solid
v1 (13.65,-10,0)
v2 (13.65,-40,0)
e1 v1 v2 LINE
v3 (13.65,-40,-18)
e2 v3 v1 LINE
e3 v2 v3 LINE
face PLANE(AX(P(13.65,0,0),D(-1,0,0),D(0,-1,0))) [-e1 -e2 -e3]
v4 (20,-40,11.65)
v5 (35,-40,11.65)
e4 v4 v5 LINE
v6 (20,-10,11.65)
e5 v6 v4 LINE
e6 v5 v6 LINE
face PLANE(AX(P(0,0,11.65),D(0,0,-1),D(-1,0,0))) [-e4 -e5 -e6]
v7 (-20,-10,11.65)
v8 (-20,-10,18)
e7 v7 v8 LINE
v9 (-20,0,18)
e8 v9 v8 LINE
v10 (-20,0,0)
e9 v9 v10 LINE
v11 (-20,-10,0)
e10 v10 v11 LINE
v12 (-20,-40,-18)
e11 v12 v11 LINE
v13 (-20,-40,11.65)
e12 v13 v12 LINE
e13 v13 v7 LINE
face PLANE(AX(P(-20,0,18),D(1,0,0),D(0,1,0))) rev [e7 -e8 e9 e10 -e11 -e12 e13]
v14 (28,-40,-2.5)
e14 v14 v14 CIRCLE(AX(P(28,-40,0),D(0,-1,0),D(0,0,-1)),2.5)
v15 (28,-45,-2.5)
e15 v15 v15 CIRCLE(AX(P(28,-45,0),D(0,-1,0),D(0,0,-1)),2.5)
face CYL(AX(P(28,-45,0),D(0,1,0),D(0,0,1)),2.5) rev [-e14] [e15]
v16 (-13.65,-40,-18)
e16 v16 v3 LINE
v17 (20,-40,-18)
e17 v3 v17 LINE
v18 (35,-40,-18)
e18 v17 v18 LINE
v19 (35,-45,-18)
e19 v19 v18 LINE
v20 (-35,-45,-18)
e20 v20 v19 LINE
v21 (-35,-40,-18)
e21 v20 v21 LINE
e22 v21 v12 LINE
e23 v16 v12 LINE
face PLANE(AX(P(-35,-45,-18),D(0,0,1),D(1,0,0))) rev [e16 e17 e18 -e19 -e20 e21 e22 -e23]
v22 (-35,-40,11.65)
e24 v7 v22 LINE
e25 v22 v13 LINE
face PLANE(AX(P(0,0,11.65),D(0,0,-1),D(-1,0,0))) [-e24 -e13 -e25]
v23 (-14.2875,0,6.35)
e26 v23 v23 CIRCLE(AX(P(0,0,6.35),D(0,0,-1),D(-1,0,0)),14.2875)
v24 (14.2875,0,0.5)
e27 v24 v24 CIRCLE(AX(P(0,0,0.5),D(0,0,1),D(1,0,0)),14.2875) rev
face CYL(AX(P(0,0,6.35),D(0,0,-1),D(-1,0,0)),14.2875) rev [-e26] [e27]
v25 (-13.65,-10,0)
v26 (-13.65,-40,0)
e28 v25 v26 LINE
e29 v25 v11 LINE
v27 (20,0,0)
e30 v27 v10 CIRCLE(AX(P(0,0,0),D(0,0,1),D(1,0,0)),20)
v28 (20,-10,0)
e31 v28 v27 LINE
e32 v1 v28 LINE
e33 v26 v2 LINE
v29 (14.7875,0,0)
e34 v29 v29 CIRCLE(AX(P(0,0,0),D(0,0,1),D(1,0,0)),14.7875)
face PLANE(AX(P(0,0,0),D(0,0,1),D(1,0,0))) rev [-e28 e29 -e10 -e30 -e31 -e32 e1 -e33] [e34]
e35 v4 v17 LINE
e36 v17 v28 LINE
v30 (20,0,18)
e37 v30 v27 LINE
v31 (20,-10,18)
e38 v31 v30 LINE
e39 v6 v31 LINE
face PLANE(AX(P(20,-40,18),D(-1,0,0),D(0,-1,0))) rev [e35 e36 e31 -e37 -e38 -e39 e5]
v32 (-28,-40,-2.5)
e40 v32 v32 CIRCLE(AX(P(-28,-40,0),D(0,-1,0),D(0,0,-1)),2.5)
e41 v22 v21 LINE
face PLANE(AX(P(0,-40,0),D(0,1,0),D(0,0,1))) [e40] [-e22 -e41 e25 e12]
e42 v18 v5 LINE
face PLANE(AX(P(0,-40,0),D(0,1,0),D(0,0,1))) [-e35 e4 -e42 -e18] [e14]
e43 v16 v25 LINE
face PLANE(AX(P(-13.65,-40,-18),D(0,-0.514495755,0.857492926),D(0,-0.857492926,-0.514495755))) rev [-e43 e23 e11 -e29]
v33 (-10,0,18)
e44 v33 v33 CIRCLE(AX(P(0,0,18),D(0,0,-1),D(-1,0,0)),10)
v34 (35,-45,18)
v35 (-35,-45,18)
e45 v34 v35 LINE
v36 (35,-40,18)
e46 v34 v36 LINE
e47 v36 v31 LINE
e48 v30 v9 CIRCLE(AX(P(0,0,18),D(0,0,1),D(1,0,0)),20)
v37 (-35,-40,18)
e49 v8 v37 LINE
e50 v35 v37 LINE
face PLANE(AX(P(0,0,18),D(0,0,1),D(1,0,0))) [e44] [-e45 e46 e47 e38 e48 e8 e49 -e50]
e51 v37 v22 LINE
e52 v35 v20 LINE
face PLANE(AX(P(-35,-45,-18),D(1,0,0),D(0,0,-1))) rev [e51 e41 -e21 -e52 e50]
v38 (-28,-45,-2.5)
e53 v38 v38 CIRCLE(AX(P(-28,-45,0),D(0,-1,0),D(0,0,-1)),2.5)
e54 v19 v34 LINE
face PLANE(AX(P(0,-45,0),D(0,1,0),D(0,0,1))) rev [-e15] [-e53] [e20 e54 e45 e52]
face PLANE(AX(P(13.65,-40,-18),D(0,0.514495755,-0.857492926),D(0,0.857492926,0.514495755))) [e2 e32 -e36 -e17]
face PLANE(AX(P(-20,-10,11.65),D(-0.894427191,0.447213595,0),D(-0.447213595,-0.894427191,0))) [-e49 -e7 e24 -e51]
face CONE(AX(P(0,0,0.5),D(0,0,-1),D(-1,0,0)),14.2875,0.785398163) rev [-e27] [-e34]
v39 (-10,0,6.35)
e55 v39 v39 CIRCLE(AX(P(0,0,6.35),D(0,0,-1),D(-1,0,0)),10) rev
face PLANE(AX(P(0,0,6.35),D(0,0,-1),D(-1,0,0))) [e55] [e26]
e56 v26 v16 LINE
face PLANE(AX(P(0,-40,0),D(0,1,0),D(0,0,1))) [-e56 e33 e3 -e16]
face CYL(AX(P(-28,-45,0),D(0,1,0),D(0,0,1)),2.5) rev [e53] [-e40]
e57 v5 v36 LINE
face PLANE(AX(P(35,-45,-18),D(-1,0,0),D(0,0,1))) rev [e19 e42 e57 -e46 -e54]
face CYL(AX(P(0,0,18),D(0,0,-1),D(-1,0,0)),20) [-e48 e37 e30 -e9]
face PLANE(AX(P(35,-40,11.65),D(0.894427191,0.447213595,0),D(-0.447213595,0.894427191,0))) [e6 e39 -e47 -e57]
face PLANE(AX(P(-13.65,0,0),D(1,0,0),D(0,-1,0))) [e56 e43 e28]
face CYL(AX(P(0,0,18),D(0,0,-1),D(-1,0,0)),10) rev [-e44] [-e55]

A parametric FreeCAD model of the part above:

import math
import FreeCAD as App
import Part
import Sketcher
from FreeCAD import Vector


def edges_at(feature, points):
    """Names of the edges that pass closest to the given points."""
    edges = feature.Shape.Edges
    near = lambda p: min(range(len(edges)), key=lambda i: edges[i].distToShape(Part.Vertex(*p))[0])
    return sorted({f"Edge{near(p) + 1}" for p in points})


def add_polygon(sketch, points):
    """Adds a closed chain of lines whose ends are joined by coincident constraints."""
    first, n = sketch.GeometryCount, len(points)
    for a, b in zip(points, points[1:] + points[:1]):
        sketch.addGeometry(Part.LineSegment(App.Vector(*a, 0), App.Vector(*b, 0)), False)
    for i in range(n):
        sketch.addConstraint(Sketcher.Constraint("Coincident", first + i, 2, first + (i + 1) % n, 1))

doc = App.newDocument("Part")
params = doc.addObject("Spreadsheet::Sheet", "Params")
for row, (alias, value) in enumerate([
    ("sketch1_radius", "20 mm"),
    ("pad1_length", "18 mm"),
    ("sketch2_diameter", "5 mm"),
    ("sketch2_width", "70 mm"),
    ("sketch2_height", "36 mm"),
    ("pad2_length", "5 mm"),
    ("sketch3_diameter", "20 mm"),
    ("pocket2_length", "6.35 mm"),
    ("chamfer_size", "0.5 mm"),
    ("sketch5_width", "30 mm"),
    ("sketch5_height", "18 mm"),
    ("pad3_length", "6.35 mm"),
    ("sketch6_width", "15 mm"),
    ("sketch6_height", "30 mm"),
    ("pad4_length", "6.35 mm"),
], start=1):
    params.set(f"A{row}", alias)
    params.set(f"B{row}", "=" + value)
    params.setAlias(f"B{row}", alias)

body = doc.addObject("PartDesign::Body", "Body")

# Sketch on XY plane
sketch1 = body.newObject("Sketcher::SketchObject", "Sketch")
sketch1.AttachmentSupport = (doc.getObject("XY_Plane"), [""])
sketch1.MapMode = "FlatFace"
sketch1.addGeometry([
    Part.LineSegment(Vector(-20, 0, 0), Vector(-20, -40, 0)),
    Part.LineSegment(Vector(-20, -40, 0), Vector(20, -40, 0)),
    Part.LineSegment(Vector(20, -40, 0), Vector(20, 0, 0)),
    Part.ArcOfCircle(Part.Circle(Vector(0, 0, 0), Vector(0, 0, 1), 20), math.radians(0), math.radians(180)),
], False)
sketch1.addConstraint([
    Sketcher.Constraint("Coincident", 0, 2, 1, 1),
    Sketcher.Constraint("Coincident", 1, 2, 2, 1),
    Sketcher.Constraint("Tangent", 2, 2, 3, 1),
    Sketcher.Constraint("Tangent", 3, 2, 0, 1),
    Sketcher.Constraint("Vertical", 0),
    Sketcher.Constraint("Horizontal", 1),
    Sketcher.Constraint("Vertical", 2),
    Sketcher.Constraint("Coincident", 3, 3, -1, 1),
    Sketcher.Constraint("Equal", 1, 0),
    Sketcher.Constraint("Radius", 3, 20.0),
])
sketch1.setExpression("Constraints[9]", "Params.sketch1_radius")
pad1 = body.newObject("PartDesign::Pad", "Pad")
pad1.Profile = sketch1
pad1.setExpression("Length", "Params.pad1_length")

# Sketch on XZ plane
sketch2 = body.newObject("Sketcher::SketchObject", "Sketch001")
sketch2.AttachmentSupport = (doc.getObject("XZ_Plane"), [""])
sketch2.MapMode = "FlatFace"
sketch2.AttachmentOffset = App.Placement(Vector(0, 0, 40), App.Rotation())
add_polygon(sketch2, [(-35, 18), (-35, -18), (35, -18), (35, 18)])  # lines 0-3
sketch2.addGeometry(Part.Circle(Vector(-28, 0, 0), Vector(0, 0, 1), 2.5), False)  # 4
sketch2.addGeometry(Part.Circle(Vector(28, 0, 0), Vector(0, 0, 1), 2.5), False)  # 5
sketch2.addConstraint([
    Sketcher.Constraint("Vertical", 0),
    Sketcher.Constraint("Horizontal", 1),
    Sketcher.Constraint("Vertical", 2),
    Sketcher.Constraint("Horizontal", 3),
    Sketcher.Constraint("Equal", 4, 5),
    Sketcher.Constraint("Symmetric", 4, 3, 5, 3, -1, 1),
    Sketcher.Constraint("Symmetric", 0, 2, 2, 2, -1, 1),
    Sketcher.Constraint("PointOnObject", 4, 3, -1),
    Sketcher.Constraint("Diameter", 4, 5.0),
    Sketcher.Constraint("DistanceX", 1, 1, 1, 2, 70.0),
    Sketcher.Constraint("DistanceY", 0, 2, 0, 1, 36.0),
    Sketcher.Constraint("DistanceX", 4, 3, -1, 1, 28.0),
])
sketch2.setExpression("Constraints[12]", "Params.sketch2_diameter")
sketch2.setExpression("Constraints[13]", "Params.sketch2_width")
sketch2.setExpression("Constraints[14]", "Params.sketch2_height")
pad2 = body.newObject("PartDesign::Pad", "Pad001")
pad2.Profile = sketch2
pad2.setExpression("Length", "Params.pad2_length")

# Sketch on XY plane
sketch3 = body.newObject("Sketcher::SketchObject", "Sketch002")
sketch3.AttachmentSupport = (doc.getObject("XY_Plane"), [""])
sketch3.MapMode = "FlatFace"
sketch3.addGeometry(Part.Circle(Vector(0, 0, 0), Vector(0, 0, 1), 10), False)
sketch3.addConstraint([
    Sketcher.Constraint("Coincident", 0, 3, -1, 1),
    Sketcher.Constraint("Diameter", 0, 20.0),
])
sketch3.setExpression("Constraints[1]", "Params.sketch3_diameter")
pocket1 = body.newObject("PartDesign::Pocket", "Pocket")
pocket1.Profile = sketch3
pocket1.Type = "ThroughAll"
pocket1.Reversed = True

# Sketch on XY plane
sketch4 = body.newObject("Sketcher::SketchObject", "Sketch003")
sketch4.AttachmentSupport = (doc.getObject("XY_Plane"), [""])
sketch4.MapMode = "FlatFace"
sketch4.addGeometry(Part.Circle(Vector(0, 0, 0), Vector(0, 0, 1), 14), False)
sketch4.addConstraint([
    Sketcher.Constraint("Coincident", 0, 3, -1, 1),
    Sketcher.Constraint("Diameter", 0, 28.575),
])
pocket2 = body.newObject("PartDesign::Pocket", "Pocket001")
pocket2.Profile = sketch4
pocket2.setExpression("Length", "Params.pocket2_length")
pocket2.Reversed = True
doc.recompute()

chamfer = body.newObject("PartDesign::Chamfer", "Chamfer")
chamfer.Base = (pocket2, edges_at(pocket2, [(14.287, 0, 0)]))
chamfer.setExpression("Size", "Params.chamfer_size")

# Sketch on YZ plane
sketch5 = body.newObject("Sketcher::SketchObject", "Sketch004")
sketch5.AttachmentSupport = (doc.getObject("YZ_Plane"), [""])
sketch5.MapMode = "FlatFace"
sketch5.AttachmentOffset = App.Placement(Vector(0, 0, 20), App.Rotation())
add_polygon(sketch5, [(-40, -18), (-10, 0), (-40, 0)])  # lines 0-2
sketch5.addConstraint([
    Sketcher.Constraint("Horizontal", 1),
    Sketcher.Constraint("Vertical", 2),
    Sketcher.Constraint("PointOnObject", 0, 2, -1),
    Sketcher.Constraint("DistanceX", 1, 2, 1, 1, 30.0),
    Sketcher.Constraint("DistanceY", 2, 2, 2, 1, 18.0),
    Sketcher.Constraint("DistanceX", 0, 2, -1, 1, 10.0),
])
sketch5.setExpression("Constraints[6]", "Params.sketch5_width")
sketch5.setExpression("Constraints[7]", "Params.sketch5_height")
pad3 = body.newObject("PartDesign::Pad", "Pad002")
pad3.Profile = sketch5
pad3.setExpression("Length", "Params.pad3_length")
pad3.Reversed = True
doc.recompute()

mirrored = body.newObject("PartDesign::Mirrored", "Mirrored")
mirrored.Originals = [pad3]
mirrored.MirrorPlane = (doc.getObject("YZ_Plane"), [""])
body.Tip = mirrored

# Sketch on XY plane
sketch6 = body.newObject("Sketcher::SketchObject", "Sketch005")
sketch6.AttachmentSupport = (doc.getObject("XY_Plane"), [""])
sketch6.MapMode = "FlatFace"
sketch6.AttachmentOffset = App.Placement(Vector(0, 0, 18), App.Rotation())
add_polygon(sketch6, [(-20, -10), (-35, -40), (-20, -40)])  # lines 0-2
add_polygon(sketch6, [(20, -10), (20, -40), (35, -40)])  # lines 3-5
sketch6.addConstraint([
    Sketcher.Constraint("Horizontal", 1),
    Sketcher.Constraint("Vertical", 2),
    Sketcher.Constraint("Vertical", 3),
    Sketcher.Constraint("Horizontal", 4),
    Sketcher.Constraint("Symmetric", 1, 2, 3, 2, -2),
    Sketcher.Constraint("Horizontal", 2, 2, 5, 2),
    Sketcher.Constraint("Equal", 1, 4),
    Sketcher.Constraint("DistanceX", 1, 1, 1, 2, 15.0),
    Sketcher.Constraint("DistanceY", 2, 1, 2, 2, 30.0),
    Sketcher.Constraint("DistanceX", 0, 2, -1, 1, 35.0),
    Sketcher.Constraint("DistanceY", 0, 2, -1, 1, 40.0),
])
sketch6.setExpression("Constraints[13]", "Params.sketch6_width")
sketch6.setExpression("Constraints[14]", "Params.sketch6_height")
pad4 = body.newObject("PartDesign::Pad", "Pad003")
pad4.Profile = sketch6
pad4.setExpression("Length", "Params.pad4_length")
pad4.Reversed = True

doc.recompute()
